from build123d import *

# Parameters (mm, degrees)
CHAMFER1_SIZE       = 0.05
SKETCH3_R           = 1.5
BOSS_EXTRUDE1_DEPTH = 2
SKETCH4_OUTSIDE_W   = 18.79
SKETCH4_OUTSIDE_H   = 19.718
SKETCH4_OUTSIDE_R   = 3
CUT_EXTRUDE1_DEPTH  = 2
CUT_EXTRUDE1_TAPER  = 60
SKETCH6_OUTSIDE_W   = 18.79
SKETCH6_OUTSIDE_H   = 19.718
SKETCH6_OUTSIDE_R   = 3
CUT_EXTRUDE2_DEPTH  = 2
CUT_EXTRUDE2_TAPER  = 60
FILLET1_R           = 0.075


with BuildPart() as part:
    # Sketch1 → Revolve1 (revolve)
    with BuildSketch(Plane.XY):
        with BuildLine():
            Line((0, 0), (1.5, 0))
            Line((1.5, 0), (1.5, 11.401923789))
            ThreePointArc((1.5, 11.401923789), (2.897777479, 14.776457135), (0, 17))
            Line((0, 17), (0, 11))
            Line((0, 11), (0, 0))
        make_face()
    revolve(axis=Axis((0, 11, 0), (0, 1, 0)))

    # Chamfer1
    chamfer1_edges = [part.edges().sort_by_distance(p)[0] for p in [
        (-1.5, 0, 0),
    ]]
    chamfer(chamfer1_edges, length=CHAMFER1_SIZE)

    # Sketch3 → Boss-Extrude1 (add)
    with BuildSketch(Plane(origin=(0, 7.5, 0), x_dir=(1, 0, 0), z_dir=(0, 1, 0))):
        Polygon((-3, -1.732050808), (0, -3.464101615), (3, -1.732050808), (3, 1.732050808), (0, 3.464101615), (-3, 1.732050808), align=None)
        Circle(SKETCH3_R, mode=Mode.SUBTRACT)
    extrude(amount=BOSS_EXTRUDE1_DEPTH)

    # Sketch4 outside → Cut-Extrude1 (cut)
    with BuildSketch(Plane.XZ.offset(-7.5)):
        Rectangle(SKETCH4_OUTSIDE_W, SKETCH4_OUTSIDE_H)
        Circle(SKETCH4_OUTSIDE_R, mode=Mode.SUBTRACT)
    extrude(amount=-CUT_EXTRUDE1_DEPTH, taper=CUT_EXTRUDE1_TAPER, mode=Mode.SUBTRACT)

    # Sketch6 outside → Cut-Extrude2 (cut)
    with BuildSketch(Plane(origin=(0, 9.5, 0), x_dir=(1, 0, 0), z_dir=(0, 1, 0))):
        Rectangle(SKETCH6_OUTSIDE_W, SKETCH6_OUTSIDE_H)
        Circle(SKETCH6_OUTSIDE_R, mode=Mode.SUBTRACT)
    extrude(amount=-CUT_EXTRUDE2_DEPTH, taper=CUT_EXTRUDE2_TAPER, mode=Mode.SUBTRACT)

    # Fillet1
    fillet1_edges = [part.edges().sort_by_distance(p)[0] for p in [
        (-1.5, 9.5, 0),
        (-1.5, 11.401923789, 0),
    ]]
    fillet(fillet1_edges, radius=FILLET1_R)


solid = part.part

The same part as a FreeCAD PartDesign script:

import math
import FreeCAD as App
import Part
import Sketcher
from FreeCAD import Vector
Q = App.Units.Quantity


def edges_at(feature, points):
    """Names of the edges that pass closest to the given points."""
    edges = feature.Shape.Edges
    near = lambda p: min(range(len(edges)), key=lambda i: edges[i].distToShape(Part.Vertex(*p))[0])
    return sorted({f"Edge{near(p) + 1}" for p in points})


def add_polygon(sketch, points):
    """Adds a closed chain of lines whose ends are joined by coincident constraints."""
    first, n = sketch.GeometryCount, len(points)
    for a, b in zip(points, points[1:] + points[:1]):
        sketch.addGeometry(Part.LineSegment(App.Vector(*a, 0), App.Vector(*b, 0)), False)
    for i in range(n):
        sketch.addConstraint(Sketcher.Constraint("Coincident", first + i, 2, first + (i + 1) % n, 1))

doc = App.newDocument("Part")
params = doc.addObject("Spreadsheet::Sheet", "Params")
for row, (alias, value) in enumerate([
    ("sketch1_radius", "3 mm"),
    ("sketch1_height", "17 mm"),
    ("sketch1_width", "1.5 mm"),
    ("revolution_angle", "360 deg"),
    ("chamfer_size", "0.05 mm"),
    ("sketch2_diameter", "3 mm"),
    ("pad1_length", "2 mm"),
    ("sketch3_diameter", "6 mm"),
    ("sketch3_width", "18.79 mm"),
    ("pocket1_length", "2 mm"),
    ("pocket1_taper", "60 deg"),
    ("sketch4_diameter", "6 mm"),
    ("sketch4_width", "18.79 mm"),
    ("pocket2_length", "2 mm"),
    ("pocket2_taper", "60 deg"),
    ("fillet_radius", "0.075 mm"),
], start=1):
    params.set(f"A{row}", alias)
    params.set(f"B{row}", "=" + value)
    params.setAlias(f"B{row}", alias)

body = doc.addObject("PartDesign::Body", "Body")

# Sketch on XY plane
sketch1 = body.newObject("Sketcher::SketchObject", "Sketch")
sketch1.AttachmentSupport = (doc.getObject("XY_Plane"), [""])
sketch1.MapMode = "FlatFace"
sketch1.addGeometry([
    Part.LineSegment(Vector(0, 0, 0), Vector(1.5, 0, 0)),
    Part.LineSegment(Vector(1.5, 0, 0), Vector(1.5, 11.401924, 0)),
    Part.ArcOfCircle(Part.Circle(Vector(0, 14, 0), Vector(0, 0, 1), 3), math.radians(-60), math.radians(90)),
    Part.LineSegment(Vector(0, 17, 0), Vector(0, 0, 0)),
], False)
sketch1.addConstraint([
    Sketcher.Constraint("Coincident", 0, 2, 1, 1),
    Sketcher.Constraint("Coincident", 1, 2, 2, 1),
    Sketcher.Constraint("Coincident", 2, 2, 3, 1),
    Sketcher.Constraint("Coincident", 3, 2, 0, 1),
    Sketcher.Constraint("Horizontal", 0),
    Sketcher.Constraint("Vertical", 1),
    Sketcher.Constraint("Vertical", 3),
    Sketcher.Constraint("Coincident", 3, 2, -1, 1),
    Sketcher.Constraint("PointOnObject", 2, 3, -2),
    Sketcher.Constraint("Radius", 2, Q("3 mm")),
    Sketcher.Constraint("DistanceY", 3, 2, 3, 1, Q("17 mm")),
    Sketcher.Constraint("DistanceX", 0, 1, 0, 2, Q("1.5 mm")),
])
sketch1.setExpression("Constraints[9]", "Params.sketch1_radius")
sketch1.setExpression("Constraints[10]", "Params.sketch1_height")
sketch1.setExpression("Constraints[11]", "Params.sketch1_width")
revolution = body.newObject("PartDesign::Revolution", "Revolution")
revolution.Profile = sketch1
revolution.ReferenceAxis = (sketch1, ["V_Axis"])
revolution.setExpression("Angle", "Params.revolution_angle")
doc.recompute()

chamfer = body.newObject("PartDesign::Chamfer", "Chamfer")
chamfer.Base = (revolution, edges_at(revolution, [(-1.5, 0, 0)]))
chamfer.setExpression("Size", "Params.chamfer_size")

# Sketch on XZ plane
sketch2 = body.newObject("Sketcher::SketchObject", "Sketch001")
sketch2.AttachmentSupport = (doc.getObject("XZ_Plane"), [""])
sketch2.MapMode = "FlatFace"
sketch2.AttachmentOffset = App.Placement(Vector(0, 0, -7.5), App.Rotation())
add_polygon(sketch2, [(-3, 1.732051), (0, 3.464102), (3, 1.732051), (3, -1.732051), (0, -3.464102), (-3, -1.732051)])  # lines 0-5
sketch2.addGeometry(Part.Circle(Vector(0, 0, 0), Vector(0, 0, 1), 1.5), False)  # 6
sketch2.addConstraint([
    Sketcher.Constraint("Vertical", 2),
    Sketcher.Constraint("Vertical", 5),
    Sketcher.Constraint("Coincident", 6, 3, -1, 1),
    Sketcher.Constraint("Symmetric", 0, 2, 3, 2, -1, 1),
    Sketcher.Constraint("Symmetric", 1, 2, 4, 2, -1, 1),
    Sketcher.Constraint("PointOnObject", 0, 2, -2),
    Sketcher.Constraint("Parallel", 0, 3),
    Sketcher.Constraint("Horizontal", 2, 2, 4, 2),
    Sketcher.Constraint("Diameter", 6, Q("3 mm")),
    Sketcher.Constraint("Angle", 0, Q("30 deg")),
    Sketcher.Constraint("DistanceX", -1, 1, 1, 2, Q("3 mm")),
    Sketcher.Constraint("DistanceY", 2, 2, 2, 1, Q("3.464102 mm")),
])
sketch2.setExpression("Constraints[14]", "Params.sketch2_diameter")
pad1 = body.newObject("PartDesign::Pad", "Pad")
pad1.Profile = sketch2
pad1.setExpression("Length", "Params.pad1_length")
pad1.Reversed = True

# Sketch on XZ plane
sketch3 = body.newObject("Sketcher::SketchObject", "Sketch002")
sketch3.AttachmentSupport = (doc.getObject("XZ_Plane"), [""])
sketch3.MapMode = "FlatFace"
sketch3.AttachmentOffset = App.Placement(Vector(0, 0, -7.5), App.Rotation())
add_polygon(sketch3, [(-9.395, 9.859), (-9.395, -9.859), (9.395, -9.859), (9.395, 9.859)])  # lines 0-3
sketch3.addGeometry(Part.Circle(Vector(0, 0, 0), Vector(0, 0, 1), 3), False)  # 4
sketch3.addConstraint([
    Sketcher.Constraint("Vertical", 0),
    Sketcher.Constraint("Horizontal", 1),
    Sketcher.Constraint("Vertical", 2),
    Sketcher.Constraint("Horizontal", 3),
    Sketcher.Constraint("Coincident", 4, 3, -1, 1),
    Sketcher.Constraint("Symmetric", 0, 2, 2, 2, -1, 1),
    Sketcher.Constraint("Diameter", 4, Q("6 mm")),
    Sketcher.Constraint("DistanceX", 1, 1, 1, 2, Q("18.79 mm")),
    Sketcher.Constraint("DistanceY", 0, 2, 0, 1, Q("19.718 mm")),
])
sketch3.setExpression("Constraints[10]", "Params.sketch3_diameter")
sketch3.setExpression("Constraints[11]", "Params.sketch3_width")
pocket1 = body.newObject("PartDesign::Pocket", "Pocket")
pocket1.Profile = sketch3
pocket1.setExpression("Length", "Params.pocket1_length")
pocket1.setExpression("TaperAngle", "Params.pocket1_taper")

# Sketch on XZ plane
sketch4 = body.newObject("Sketcher::SketchObject", "Sketch003")
sketch4.AttachmentSupport = (doc.getObject("XZ_Plane"), [""])
sketch4.MapMode = "FlatFace"
sketch4.AttachmentOffset = App.Placement(Vector(0, 0, -9.5), App.Rotation())
add_polygon(sketch4, [(-9.395, -9.859), (-9.395, 9.859), (9.395, 9.859), (9.395, -9.859)])  # lines 0-3
sketch4.addGeometry(Part.Circle(Vector(0, 0, 0), Vector(0, 0, 1), 3), False)  # 4
sketch4.addConstraint([
    Sketcher.Constraint("Vertical", 0),
    Sketcher.Constraint("Horizontal", 1),
    Sketcher.Constraint("Vertical", 2),
    Sketcher.Constraint("Horizontal", 3),
    Sketcher.Constraint("Coincident", 4, 3, -1, 1),
    Sketcher.Constraint("Symmetric", 0, 2, 2, 2, -1, 1),
    Sketcher.Constraint("Diameter", 4, Q("6 mm")),
    Sketcher.Constraint("DistanceX", 1, 1, 1, 2, Q("18.79 mm")),
    Sketcher.Constraint("DistanceY", 0, 1, 0, 2, Q("19.718 mm")),
])
sketch4.setExpression("Constraints[10]", "Params.sketch4_diameter")
sketch4.setExpression("Constraints[11]", "Params.sketch4_width")
pocket2 = body.newObject("PartDesign::Pocket", "Pocket001")
pocket2.Profile = sketch4
pocket2.setExpression("Length", "Params.pocket2_length")
pocket2.Reversed = True
pocket2.setExpression("TaperAngle", "Params.pocket2_taper")
doc.recompute()

fillet = body.newObject("PartDesign::Fillet", "Fillet")
fillet.Base = (pocket2, edges_at(pocket2, [(-1.5, 9.5, 0), (-1.5, 11.402, 0)]))
fillet.setExpression("Radius", "Params.fillet_radius")

doc.recompute()
